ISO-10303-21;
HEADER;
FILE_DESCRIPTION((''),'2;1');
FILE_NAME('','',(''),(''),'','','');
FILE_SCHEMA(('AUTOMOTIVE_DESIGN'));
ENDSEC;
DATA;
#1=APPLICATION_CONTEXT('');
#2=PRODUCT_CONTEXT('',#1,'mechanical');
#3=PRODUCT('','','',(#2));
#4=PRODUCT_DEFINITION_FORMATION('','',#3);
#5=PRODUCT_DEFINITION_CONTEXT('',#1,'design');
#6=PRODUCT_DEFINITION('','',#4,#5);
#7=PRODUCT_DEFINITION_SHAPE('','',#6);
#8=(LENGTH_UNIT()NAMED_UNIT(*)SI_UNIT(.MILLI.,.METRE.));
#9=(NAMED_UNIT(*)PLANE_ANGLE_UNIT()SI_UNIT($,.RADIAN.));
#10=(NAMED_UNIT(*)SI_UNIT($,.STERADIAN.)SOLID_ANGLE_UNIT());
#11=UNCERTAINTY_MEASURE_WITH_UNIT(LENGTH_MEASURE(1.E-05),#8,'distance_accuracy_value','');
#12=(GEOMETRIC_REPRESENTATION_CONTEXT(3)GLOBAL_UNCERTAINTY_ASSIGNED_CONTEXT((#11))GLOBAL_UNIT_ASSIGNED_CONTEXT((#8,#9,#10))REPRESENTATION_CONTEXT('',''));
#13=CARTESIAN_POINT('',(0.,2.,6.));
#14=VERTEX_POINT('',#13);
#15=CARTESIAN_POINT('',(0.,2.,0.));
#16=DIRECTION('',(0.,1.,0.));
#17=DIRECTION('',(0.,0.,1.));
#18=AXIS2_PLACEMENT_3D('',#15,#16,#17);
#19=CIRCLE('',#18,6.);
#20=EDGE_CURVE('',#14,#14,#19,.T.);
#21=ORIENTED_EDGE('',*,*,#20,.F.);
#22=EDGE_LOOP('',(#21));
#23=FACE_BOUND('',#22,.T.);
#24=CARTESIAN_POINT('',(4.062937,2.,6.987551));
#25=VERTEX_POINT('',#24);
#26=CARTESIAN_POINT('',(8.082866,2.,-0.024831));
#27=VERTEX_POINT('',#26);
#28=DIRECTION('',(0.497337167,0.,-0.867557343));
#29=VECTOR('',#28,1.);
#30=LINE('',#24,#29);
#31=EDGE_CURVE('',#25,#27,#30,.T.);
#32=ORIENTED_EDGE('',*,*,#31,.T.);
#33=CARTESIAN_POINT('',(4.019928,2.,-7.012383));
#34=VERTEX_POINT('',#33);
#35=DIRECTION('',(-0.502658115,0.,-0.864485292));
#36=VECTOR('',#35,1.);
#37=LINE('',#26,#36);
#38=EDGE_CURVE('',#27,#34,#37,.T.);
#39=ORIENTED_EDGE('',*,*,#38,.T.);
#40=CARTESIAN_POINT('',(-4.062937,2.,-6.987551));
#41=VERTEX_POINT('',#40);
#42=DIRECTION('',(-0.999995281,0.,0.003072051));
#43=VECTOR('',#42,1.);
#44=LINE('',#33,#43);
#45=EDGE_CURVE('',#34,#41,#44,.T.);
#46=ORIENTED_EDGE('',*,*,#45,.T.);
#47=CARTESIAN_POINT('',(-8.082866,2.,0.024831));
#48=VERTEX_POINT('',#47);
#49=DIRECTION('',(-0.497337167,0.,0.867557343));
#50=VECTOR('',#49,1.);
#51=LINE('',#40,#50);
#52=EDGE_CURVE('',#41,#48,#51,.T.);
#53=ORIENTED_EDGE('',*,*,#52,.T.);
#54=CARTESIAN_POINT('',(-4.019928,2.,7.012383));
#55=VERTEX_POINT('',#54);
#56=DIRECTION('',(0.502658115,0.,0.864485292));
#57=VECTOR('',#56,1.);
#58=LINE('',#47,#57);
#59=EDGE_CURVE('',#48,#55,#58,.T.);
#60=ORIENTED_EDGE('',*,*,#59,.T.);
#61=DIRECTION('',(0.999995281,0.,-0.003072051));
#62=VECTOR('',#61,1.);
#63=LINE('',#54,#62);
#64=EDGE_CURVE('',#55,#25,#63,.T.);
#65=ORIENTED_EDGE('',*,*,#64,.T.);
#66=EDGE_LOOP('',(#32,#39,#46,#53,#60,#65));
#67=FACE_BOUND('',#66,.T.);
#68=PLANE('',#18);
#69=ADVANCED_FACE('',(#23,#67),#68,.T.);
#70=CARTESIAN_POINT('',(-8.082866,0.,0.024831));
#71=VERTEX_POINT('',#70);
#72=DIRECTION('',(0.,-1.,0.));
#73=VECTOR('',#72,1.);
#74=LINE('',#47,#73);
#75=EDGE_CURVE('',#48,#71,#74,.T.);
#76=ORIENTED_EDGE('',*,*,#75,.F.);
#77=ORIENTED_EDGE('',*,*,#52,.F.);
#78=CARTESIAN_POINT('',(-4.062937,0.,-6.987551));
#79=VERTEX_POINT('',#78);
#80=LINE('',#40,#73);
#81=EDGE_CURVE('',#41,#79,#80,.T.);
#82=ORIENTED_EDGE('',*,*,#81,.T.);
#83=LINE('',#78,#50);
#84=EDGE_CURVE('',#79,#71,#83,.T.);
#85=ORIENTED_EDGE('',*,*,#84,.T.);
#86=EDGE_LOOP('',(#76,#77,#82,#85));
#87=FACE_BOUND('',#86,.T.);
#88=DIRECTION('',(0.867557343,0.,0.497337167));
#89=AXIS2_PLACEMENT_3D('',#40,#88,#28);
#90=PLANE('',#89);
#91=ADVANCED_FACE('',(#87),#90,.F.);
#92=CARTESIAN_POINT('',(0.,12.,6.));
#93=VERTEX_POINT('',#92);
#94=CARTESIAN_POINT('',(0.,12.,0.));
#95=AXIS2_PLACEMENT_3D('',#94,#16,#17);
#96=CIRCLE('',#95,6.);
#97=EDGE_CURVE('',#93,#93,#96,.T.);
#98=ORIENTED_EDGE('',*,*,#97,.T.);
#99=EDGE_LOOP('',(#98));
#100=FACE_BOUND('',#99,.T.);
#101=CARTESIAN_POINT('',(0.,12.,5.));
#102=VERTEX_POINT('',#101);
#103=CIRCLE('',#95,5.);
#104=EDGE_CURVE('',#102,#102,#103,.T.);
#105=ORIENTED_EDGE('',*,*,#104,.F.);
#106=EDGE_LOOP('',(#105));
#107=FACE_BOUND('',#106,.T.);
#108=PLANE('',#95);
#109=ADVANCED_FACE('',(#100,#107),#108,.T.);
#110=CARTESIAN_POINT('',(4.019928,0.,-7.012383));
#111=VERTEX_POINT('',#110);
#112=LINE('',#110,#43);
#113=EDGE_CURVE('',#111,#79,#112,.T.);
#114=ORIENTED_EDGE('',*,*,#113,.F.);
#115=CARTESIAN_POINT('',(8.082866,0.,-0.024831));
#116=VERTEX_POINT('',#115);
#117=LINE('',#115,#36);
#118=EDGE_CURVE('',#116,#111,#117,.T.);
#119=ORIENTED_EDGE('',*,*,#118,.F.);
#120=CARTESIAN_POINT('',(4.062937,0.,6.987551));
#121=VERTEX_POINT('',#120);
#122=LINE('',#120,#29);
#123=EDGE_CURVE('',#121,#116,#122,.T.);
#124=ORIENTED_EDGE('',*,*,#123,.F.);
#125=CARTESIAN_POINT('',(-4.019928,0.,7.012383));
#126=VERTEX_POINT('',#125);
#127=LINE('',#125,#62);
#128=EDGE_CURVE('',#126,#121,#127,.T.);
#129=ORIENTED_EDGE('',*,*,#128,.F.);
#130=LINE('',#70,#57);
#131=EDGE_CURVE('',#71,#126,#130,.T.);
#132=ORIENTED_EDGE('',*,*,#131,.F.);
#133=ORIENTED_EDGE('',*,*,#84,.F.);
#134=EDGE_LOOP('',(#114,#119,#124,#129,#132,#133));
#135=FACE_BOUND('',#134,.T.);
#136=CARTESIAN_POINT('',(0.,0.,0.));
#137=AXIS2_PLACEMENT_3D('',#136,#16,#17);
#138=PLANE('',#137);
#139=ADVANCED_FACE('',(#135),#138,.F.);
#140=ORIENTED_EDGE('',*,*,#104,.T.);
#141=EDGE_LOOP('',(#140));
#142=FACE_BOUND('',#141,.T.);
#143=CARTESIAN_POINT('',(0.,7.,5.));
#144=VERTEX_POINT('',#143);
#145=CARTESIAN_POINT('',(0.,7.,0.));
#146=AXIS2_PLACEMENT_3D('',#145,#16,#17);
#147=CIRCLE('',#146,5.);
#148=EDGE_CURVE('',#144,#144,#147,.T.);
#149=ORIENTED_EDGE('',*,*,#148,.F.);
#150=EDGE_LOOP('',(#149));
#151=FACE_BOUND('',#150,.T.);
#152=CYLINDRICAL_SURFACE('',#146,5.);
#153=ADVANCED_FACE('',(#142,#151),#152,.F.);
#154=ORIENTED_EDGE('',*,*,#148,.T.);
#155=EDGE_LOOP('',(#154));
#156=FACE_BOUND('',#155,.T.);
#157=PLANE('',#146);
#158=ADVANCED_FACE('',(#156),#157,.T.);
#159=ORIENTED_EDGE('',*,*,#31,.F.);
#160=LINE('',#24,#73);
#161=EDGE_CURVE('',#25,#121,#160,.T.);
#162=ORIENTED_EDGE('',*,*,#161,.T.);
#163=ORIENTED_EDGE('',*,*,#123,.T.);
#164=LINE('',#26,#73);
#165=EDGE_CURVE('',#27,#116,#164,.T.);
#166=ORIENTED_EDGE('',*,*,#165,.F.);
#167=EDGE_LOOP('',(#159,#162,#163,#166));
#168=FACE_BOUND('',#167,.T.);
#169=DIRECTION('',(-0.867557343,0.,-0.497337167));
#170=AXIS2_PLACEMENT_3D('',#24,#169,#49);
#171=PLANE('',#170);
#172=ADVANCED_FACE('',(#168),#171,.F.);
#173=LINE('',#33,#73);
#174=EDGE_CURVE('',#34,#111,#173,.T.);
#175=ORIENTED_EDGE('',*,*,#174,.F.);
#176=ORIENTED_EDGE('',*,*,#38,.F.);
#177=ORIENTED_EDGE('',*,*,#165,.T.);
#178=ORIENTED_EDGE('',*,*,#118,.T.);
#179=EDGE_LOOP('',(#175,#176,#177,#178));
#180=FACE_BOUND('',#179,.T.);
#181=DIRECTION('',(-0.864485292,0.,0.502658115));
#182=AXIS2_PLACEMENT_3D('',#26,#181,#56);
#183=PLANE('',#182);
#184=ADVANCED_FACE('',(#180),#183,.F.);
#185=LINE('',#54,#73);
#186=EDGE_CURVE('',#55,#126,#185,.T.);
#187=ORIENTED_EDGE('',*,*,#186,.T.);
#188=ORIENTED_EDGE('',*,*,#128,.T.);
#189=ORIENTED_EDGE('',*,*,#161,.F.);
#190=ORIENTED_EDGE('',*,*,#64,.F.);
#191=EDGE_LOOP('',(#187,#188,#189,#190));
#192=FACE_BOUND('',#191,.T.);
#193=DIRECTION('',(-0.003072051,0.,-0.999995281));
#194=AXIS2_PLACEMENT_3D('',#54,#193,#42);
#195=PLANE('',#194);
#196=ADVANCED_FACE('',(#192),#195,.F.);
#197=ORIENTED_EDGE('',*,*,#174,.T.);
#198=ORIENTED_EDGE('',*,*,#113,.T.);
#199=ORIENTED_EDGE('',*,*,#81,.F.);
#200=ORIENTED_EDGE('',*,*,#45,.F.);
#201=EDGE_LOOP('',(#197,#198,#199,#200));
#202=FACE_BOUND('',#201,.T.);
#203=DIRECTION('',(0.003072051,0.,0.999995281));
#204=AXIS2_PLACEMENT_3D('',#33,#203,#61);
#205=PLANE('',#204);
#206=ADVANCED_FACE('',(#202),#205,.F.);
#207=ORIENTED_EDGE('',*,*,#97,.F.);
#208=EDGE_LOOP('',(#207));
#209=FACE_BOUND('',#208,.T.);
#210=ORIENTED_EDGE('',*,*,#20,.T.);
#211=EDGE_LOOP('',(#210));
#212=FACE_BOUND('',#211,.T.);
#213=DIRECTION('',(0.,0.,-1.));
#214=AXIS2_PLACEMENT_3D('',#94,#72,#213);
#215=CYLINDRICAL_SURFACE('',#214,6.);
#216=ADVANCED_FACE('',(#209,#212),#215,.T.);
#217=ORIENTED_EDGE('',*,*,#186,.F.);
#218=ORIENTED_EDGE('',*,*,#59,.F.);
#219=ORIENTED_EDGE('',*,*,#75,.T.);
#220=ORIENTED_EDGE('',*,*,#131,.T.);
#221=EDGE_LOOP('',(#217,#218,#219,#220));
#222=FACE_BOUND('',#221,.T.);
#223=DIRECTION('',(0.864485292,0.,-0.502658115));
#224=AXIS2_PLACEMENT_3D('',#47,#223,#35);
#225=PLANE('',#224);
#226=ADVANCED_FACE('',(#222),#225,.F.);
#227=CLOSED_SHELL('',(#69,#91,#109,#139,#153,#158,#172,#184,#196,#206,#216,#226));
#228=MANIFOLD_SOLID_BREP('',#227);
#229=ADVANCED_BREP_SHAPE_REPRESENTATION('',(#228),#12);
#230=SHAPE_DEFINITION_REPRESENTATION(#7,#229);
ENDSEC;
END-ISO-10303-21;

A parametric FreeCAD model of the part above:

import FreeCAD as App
import Part
import Sketcher
Q = App.Units.Quantity


def add_polygon(sketch, points):
    """Adds a closed chain of lines whose ends are joined by coincident constraints."""
    first, n = sketch.GeometryCount, len(points)
    for a, b in zip(points, points[1:] + points[:1]):
        sketch.addGeometry(Part.LineSegment(App.Vector(*a, 0), App.Vector(*b, 0)), False)
    for i in range(n):
        sketch.addConstraint(Sketcher.Constraint("Coincident", first + i, 2, first + (i + 1) % n, 1))

doc = App.newDocument("Part")
body = doc.addObject("PartDesign::Body", "Body")

# Sketch on XZ plane
sketch1 = body.newObject("Sketcher::SketchObject", "Sketch")
sketch1.AttachmentSupport = (doc.getObject("XZ_Plane"), [""])
sketch1.MapMode = "FlatFace"
add_polygon(sketch1, [(4.062937, 6.987551), (8.082866, -0.024831), (4.019928, -7.012383), (-4.062937, -6.987551), (-8.082866, 0.024831), (-4.019928, 7.012383)])  # lines 0-5
sketch1.addConstraint(Sketcher.Constraint("Symmetric", 0, 2, 3, 2, -1, 1))
sketch1.addConstraint(Sketcher.Constraint("Symmetric", 1, 2, 4, 2, -1, 1))
sketch1.addConstraint(Sketcher.Constraint("Symmetric", 2, 2, 5, 2, -1, 1))
sketch1.addConstraint(Sketcher.Constraint("Equal", 0, 1))
sketch1.addConstraint(Sketcher.Constraint("Equal", 1, 2))
sketch1.addConstraint(Sketcher.Constraint("DistanceY", 0, 2, -1, 1, Q("0.024831 mm")))
sketch1.addConstraint(Sketcher.Constraint("DistanceX", -1, 1, 1, 2, Q("4.019928 mm")))
sketch1.addConstraint(Sketcher.Constraint("DistanceY", 2, 2, -1, 1, Q("6.987551 mm")))
sketch1.addConstraint(Sketcher.Constraint("DistanceY", 1, 2, 0, 2, Q("6.987551 mm")))
pad1 = body.newObject("PartDesign::Pad", "Pad")
pad1.Profile = sketch1
pad1.Length = 2
pad1.Reversed = True

# Sketch on XZ plane
sketch2 = body.newObject("Sketcher::SketchObject", "Sketch001")
sketch2.AttachmentSupport = (doc.getObject("XZ_Plane"), [""])
sketch2.MapMode = "FlatFace"
sketch2.AttachmentOffset = App.Placement(App.Vector(0, 0, -2), App.Rotation())
sketch2.addGeometry(Part.Circle(App.Vector(0, 0, 0), App.Vector(0, 0, 1), 6), False)
sketch2.addConstraint(Sketcher.Constraint("Coincident", 0, 3, -1, 1))
sketch2.addConstraint(Sketcher.Constraint("Diameter", 0, Q("12 mm")))
pad2 = body.newObject("PartDesign::Pad", "Pad001")
pad2.Profile = sketch2
pad2.Length = 10
pad2.Reversed = True

# Sketch on XZ plane
sketch3 = body.newObject("Sketcher::SketchObject", "Sketch002")
sketch3.AttachmentSupport = (doc.getObject("XZ_Plane"), [""])
sketch3.MapMode = "FlatFace"
sketch3.AttachmentOffset = App.Placement(App.Vector(0, 0, -12), App.Rotation())
sketch3.addGeometry(Part.Circle(App.Vector(0, 0, 0), App.Vector(0, 0, 1), 5), False)
sketch3.addConstraint(Sketcher.Constraint("Coincident", 0, 3, -1, 1))
sketch3.addConstraint(Sketcher.Constraint("Diameter", 0, Q("10 mm")))
pocket1 = body.newObject("PartDesign::Pocket", "Pocket")
pocket1.Profile = sketch3
pocket1.Length = 5
pocket1.Reversed = True

doc.recompute()
